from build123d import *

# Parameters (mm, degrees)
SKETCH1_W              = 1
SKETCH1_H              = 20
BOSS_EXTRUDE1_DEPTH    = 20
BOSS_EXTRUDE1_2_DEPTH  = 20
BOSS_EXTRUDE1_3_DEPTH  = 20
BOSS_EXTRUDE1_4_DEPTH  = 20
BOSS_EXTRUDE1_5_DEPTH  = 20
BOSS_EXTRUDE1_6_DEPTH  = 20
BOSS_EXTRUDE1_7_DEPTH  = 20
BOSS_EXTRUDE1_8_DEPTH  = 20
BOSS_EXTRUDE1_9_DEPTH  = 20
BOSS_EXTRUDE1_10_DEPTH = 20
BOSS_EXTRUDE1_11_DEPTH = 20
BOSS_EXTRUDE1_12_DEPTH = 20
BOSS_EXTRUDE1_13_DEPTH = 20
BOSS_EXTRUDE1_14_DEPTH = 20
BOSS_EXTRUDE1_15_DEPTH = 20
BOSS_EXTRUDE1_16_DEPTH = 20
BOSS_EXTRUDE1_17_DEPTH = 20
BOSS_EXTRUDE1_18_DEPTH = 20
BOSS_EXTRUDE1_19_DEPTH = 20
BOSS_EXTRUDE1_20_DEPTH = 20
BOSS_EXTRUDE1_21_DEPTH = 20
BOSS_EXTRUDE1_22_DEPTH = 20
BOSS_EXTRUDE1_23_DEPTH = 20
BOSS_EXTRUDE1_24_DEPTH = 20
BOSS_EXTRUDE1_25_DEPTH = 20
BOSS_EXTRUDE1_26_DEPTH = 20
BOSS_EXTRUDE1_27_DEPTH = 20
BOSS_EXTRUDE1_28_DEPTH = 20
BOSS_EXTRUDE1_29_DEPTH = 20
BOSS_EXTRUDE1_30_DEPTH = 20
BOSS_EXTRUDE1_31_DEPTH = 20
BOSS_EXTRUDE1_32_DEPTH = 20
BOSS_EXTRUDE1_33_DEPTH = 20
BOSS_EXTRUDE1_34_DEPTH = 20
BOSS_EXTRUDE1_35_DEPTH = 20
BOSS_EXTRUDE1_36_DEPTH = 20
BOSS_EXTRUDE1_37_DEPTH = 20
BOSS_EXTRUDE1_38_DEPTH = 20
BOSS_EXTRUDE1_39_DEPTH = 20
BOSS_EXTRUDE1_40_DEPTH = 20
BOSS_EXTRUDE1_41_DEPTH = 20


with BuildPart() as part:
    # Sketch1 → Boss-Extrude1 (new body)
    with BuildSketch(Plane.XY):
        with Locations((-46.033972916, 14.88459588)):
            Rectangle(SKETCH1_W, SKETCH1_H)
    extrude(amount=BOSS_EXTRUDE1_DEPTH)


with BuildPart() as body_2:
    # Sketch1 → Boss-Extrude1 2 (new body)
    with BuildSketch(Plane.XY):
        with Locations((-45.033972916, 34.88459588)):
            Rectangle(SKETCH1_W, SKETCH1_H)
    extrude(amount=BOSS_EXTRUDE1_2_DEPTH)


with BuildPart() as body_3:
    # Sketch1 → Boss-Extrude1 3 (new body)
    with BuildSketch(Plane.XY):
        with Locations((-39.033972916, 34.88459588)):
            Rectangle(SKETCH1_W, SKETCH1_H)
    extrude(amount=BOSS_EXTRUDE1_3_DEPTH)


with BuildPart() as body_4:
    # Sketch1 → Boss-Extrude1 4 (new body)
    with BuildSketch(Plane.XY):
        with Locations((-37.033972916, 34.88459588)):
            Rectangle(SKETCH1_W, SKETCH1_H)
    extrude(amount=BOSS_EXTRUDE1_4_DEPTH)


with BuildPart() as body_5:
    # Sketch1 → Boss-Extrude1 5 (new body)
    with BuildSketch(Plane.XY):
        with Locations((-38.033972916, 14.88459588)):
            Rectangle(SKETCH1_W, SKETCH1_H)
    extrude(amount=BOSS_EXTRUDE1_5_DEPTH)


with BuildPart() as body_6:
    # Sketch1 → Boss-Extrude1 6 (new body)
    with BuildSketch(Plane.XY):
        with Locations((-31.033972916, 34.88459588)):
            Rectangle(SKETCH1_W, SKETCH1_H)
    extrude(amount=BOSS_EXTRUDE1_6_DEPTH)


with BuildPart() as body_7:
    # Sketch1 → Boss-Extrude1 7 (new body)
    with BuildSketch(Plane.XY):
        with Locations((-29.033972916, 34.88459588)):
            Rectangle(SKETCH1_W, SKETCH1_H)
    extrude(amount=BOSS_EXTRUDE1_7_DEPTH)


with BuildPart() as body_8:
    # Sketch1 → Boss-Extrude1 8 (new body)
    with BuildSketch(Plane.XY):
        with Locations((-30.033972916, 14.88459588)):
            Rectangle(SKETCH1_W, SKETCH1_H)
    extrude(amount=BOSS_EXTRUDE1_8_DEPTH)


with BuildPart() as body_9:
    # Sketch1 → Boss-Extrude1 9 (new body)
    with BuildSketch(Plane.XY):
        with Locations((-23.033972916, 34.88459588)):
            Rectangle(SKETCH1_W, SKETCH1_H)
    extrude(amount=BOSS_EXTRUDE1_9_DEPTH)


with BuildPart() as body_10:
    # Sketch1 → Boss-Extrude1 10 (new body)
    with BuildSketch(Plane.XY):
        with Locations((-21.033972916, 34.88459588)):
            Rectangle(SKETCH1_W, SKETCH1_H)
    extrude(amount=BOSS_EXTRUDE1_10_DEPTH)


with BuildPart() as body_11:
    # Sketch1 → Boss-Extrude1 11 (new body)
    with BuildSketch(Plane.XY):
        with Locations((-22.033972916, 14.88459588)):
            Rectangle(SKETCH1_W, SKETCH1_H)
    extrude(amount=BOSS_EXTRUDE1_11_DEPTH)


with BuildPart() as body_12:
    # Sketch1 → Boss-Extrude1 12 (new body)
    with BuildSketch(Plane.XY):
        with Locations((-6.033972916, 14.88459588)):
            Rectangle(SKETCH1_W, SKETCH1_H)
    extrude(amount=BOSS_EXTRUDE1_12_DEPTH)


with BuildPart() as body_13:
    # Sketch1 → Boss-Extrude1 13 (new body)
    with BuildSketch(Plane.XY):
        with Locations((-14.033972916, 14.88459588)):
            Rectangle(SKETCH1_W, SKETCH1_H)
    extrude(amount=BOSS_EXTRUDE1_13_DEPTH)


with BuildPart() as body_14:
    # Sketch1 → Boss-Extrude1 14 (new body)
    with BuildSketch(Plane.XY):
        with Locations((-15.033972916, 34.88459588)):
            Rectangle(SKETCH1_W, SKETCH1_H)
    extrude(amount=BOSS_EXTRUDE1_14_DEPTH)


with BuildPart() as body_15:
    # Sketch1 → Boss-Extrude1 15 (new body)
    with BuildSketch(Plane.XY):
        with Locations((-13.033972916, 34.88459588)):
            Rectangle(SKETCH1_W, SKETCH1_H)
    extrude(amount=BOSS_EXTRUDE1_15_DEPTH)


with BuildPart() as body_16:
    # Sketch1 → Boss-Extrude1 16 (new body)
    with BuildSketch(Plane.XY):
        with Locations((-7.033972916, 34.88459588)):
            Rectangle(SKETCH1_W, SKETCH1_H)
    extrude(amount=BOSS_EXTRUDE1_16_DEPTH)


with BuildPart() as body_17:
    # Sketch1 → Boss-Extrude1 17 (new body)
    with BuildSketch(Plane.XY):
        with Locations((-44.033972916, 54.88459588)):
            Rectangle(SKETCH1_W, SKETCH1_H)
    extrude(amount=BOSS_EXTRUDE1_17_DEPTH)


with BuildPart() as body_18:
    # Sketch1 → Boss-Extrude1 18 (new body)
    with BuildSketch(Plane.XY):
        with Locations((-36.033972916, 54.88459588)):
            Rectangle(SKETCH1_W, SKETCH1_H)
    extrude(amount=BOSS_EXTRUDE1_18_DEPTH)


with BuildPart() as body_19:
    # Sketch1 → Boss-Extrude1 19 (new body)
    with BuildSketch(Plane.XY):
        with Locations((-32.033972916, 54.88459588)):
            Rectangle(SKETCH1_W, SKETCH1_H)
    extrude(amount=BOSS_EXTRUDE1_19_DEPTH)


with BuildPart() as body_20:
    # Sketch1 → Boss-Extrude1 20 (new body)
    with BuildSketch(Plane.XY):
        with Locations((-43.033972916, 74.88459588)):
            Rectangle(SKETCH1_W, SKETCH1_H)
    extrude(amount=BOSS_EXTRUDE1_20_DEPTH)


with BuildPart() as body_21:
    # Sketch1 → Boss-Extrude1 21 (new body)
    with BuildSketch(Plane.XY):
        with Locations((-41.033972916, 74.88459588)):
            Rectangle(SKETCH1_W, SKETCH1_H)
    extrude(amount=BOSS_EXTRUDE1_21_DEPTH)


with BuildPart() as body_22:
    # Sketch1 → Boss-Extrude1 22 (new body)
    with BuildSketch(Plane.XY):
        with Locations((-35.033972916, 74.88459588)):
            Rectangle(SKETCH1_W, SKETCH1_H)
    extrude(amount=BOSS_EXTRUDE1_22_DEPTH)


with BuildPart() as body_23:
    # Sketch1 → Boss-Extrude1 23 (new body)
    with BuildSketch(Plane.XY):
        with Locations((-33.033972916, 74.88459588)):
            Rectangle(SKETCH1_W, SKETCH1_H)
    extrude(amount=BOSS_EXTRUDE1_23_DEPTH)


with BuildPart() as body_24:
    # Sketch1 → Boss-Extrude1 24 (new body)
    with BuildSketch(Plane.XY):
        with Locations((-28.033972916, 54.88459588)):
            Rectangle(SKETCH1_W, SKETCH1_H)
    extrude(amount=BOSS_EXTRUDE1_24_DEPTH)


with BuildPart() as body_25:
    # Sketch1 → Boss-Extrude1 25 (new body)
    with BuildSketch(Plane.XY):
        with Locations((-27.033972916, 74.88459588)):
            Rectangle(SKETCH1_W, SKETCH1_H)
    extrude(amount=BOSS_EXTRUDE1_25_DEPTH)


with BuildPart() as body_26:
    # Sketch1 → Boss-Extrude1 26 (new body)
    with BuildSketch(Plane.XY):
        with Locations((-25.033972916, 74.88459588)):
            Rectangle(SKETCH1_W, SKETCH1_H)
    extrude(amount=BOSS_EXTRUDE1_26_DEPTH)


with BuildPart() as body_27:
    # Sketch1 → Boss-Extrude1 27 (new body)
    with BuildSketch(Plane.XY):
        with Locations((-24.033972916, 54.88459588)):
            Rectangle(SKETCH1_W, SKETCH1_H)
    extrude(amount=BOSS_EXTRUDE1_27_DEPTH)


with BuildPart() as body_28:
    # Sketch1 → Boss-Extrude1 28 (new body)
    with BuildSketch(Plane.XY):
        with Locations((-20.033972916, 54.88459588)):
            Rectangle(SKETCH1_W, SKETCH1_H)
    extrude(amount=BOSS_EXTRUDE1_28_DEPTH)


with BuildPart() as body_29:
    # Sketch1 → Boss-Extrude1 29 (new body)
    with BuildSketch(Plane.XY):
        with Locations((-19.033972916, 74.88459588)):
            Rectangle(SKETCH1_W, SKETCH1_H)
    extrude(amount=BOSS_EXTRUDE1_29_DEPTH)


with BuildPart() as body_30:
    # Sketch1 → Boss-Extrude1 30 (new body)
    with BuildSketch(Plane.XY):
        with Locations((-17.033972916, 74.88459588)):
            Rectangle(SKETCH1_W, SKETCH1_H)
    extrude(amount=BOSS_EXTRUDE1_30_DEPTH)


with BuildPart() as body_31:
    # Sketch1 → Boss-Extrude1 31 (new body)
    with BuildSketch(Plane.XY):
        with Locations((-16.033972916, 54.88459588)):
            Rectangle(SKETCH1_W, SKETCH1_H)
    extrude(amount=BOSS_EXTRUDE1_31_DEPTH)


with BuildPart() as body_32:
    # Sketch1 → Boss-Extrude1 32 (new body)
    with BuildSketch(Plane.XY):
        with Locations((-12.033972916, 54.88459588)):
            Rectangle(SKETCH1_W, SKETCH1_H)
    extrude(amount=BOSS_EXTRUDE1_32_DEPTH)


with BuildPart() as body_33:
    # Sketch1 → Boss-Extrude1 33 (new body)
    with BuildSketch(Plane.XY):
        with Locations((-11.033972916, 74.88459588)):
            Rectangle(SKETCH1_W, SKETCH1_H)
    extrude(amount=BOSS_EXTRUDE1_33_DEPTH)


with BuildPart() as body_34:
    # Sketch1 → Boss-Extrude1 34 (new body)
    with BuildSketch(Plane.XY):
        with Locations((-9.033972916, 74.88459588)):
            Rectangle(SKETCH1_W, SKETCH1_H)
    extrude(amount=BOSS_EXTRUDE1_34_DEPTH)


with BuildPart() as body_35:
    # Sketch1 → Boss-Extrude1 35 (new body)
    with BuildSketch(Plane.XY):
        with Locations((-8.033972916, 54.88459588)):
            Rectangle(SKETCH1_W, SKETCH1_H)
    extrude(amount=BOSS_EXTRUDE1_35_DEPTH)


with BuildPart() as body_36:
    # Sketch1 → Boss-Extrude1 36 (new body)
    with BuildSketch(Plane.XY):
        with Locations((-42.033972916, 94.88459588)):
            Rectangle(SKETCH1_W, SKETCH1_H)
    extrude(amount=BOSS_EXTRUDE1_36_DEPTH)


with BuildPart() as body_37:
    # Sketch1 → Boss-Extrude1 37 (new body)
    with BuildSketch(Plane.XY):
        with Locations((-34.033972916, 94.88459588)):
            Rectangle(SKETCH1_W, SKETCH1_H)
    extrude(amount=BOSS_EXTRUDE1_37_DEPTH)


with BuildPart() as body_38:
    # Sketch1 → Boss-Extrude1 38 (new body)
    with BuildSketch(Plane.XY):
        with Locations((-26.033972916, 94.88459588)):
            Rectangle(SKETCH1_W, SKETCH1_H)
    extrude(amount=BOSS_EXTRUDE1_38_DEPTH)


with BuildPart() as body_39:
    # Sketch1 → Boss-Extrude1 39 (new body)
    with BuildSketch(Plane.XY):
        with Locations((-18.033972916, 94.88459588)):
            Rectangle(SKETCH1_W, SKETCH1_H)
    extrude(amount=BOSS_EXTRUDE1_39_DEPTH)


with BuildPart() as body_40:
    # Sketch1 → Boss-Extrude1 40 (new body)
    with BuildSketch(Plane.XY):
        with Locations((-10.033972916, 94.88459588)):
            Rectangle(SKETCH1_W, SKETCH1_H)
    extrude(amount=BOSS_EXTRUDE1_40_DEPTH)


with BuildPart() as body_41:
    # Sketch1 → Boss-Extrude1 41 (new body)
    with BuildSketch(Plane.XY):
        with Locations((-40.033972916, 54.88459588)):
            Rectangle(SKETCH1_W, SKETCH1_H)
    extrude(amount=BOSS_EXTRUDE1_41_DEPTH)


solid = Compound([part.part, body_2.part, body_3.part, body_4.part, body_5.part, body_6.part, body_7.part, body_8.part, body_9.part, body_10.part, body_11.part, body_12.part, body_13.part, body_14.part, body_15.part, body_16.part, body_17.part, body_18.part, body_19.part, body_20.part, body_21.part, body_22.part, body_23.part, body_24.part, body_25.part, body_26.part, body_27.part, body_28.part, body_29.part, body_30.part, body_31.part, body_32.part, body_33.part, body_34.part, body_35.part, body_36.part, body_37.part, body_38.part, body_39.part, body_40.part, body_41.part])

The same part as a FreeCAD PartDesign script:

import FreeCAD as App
import Part
import Sketcher
Q = App.Units.Quantity


def add_polygon(sketch, points):
    """Adds a closed chain of lines whose ends are joined by coincident constraints."""
    first, n = sketch.GeometryCount, len(points)
    for a, b in zip(points, points[1:] + points[:1]):
        sketch.addGeometry(Part.LineSegment(App.Vector(*a, 0), App.Vector(*b, 0)), False)
    for i in range(n):
        sketch.addConstraint(Sketcher.Constraint("Coincident", first + i, 2, first + (i + 1) % n, 1))

doc = App.newDocument("Part")
body = doc.addObject("PartDesign::Body", "Body")

# Sketch on XY plane
sketch1 = doc.addObject("Sketcher::SketchObject", "Sketch")
body.addObject(sketch1)
sketch1.AttachmentSupport = (doc.XY_Plane, [""])
sketch1.MapMode = "FlatFace"
add_polygon(sketch1, [(-46.5, 24.9), (-46.5, 4.9), (-45.5, 4.9), (-45.5, 24.9)])  # lines 0-3
sketch1.addConstraint([
    Sketcher.Constraint("Vertical", 0),
    Sketcher.Constraint("Horizontal", 1),
    Sketcher.Constraint("Vertical", 2),
    Sketcher.Constraint("Horizontal", 3),
    Sketcher.Constraint("DistanceX", 1, 1, 1, 2, Q("1 mm")),
    Sketcher.Constraint("DistanceY", 0, 2, 0, 1, Q("20 mm")),
    Sketcher.Constraint("DistanceX", 0, 2, -1, 1, Q("46.533973 mm")),
    Sketcher.Constraint("DistanceY", -1, 1, 0, 2, Q("4.884596 mm")),
])
pad1 = doc.addObject("PartDesign::Pad", "Pad")
body.addObject(pad1)
pad1.Profile = sketch1
pad1.Length = 20
body2 = doc.addObject("PartDesign::Body", "Body001")

# Sketch on XY plane
sketch2 = doc.addObject("Sketcher::SketchObject", "Sketch001")
body2.addObject(sketch2)
sketch2.AttachmentSupport = (doc.getObject("XY_Plane001"), [""])
sketch2.MapMode = "FlatFace"
add_polygon(sketch2, [(-45.5, 44.9), (-45.5, 24.9), (-44.5, 24.9), (-44.5, 44.9)])  # lines 0-3
sketch2.addConstraint([
    Sketcher.Constraint("Vertical", 0),
    Sketcher.Constraint("Horizontal", 1),
    Sketcher.Constraint("Vertical", 2),
    Sketcher.Constraint("Horizontal", 3),
    Sketcher.Constraint("DistanceX", 1, 1, 1, 2, Q("1 mm")),
    Sketcher.Constraint("DistanceY", 0, 2, 0, 1, Q("20 mm")),
    Sketcher.Constraint("DistanceX", 0, 2, -1, 1, Q("45.533973 mm")),
    Sketcher.Constraint("DistanceY", -1, 1, 0, 2, Q("24.884596 mm")),
])
pad2 = doc.addObject("PartDesign::Pad", "Pad001")
body2.addObject(pad2)
pad2.Profile = sketch2
pad2.Length = 20
body3 = doc.addObject("PartDesign::Body", "Body002")

# Sketch on XY plane
sketch3 = doc.addObject("Sketcher::SketchObject", "Sketch002")
body3.addObject(sketch3)
sketch3.AttachmentSupport = (doc.getObject("XY_Plane002"), [""])
sketch3.MapMode = "FlatFace"
add_polygon(sketch3, [(-39.5, 44.9), (-39.5, 24.9), (-38.5, 24.9), (-38.5, 44.9)])  # lines 0-3
sketch3.addConstraint([
    Sketcher.Constraint("Vertical", 0),
    Sketcher.Constraint("Horizontal", 1),
    Sketcher.Constraint("Vertical", 2),
    Sketcher.Constraint("Horizontal", 3),
    Sketcher.Constraint("DistanceX", 1, 1, 1, 2, Q("1 mm")),
    Sketcher.Constraint("DistanceY", 0, 2, 0, 1, Q("20 mm")),
    Sketcher.Constraint("DistanceX", 0, 2, -1, 1, Q("39.533973 mm")),
    Sketcher.Constraint("DistanceY", -1, 1, 0, 2, Q("24.884596 mm")),
])
pad3 = doc.addObject("PartDesign::Pad", "Pad002")
body3.addObject(pad3)
pad3.Profile = sketch3
pad3.Length = 20
body4 = doc.addObject("PartDesign::Body", "Body003")

# Sketch on XY plane
sketch4 = doc.addObject("Sketcher::SketchObject", "Sketch003")
body4.addObject(sketch4)
sketch4.AttachmentSupport = (doc.getObject("XY_Plane003"), [""])
sketch4.MapMode = "FlatFace"
add_polygon(sketch4, [(-37.5, 44.9), (-37.5, 24.9), (-36.5, 24.9), (-36.5, 44.9)])  # lines 0-3
sketch4.addConstraint([
    Sketcher.Constraint("Vertical", 0),
    Sketcher.Constraint("Horizontal", 1),
    Sketcher.Constraint("Vertical", 2),
    Sketcher.Constraint("Horizontal", 3),
    Sketcher.Constraint("DistanceX", 1, 1, 1, 2, Q("1 mm")),
    Sketcher.Constraint("DistanceY", 0, 2, 0, 1, Q("20 mm")),
    Sketcher.Constraint("DistanceX", 0, 2, -1, 1, Q("37.533973 mm")),
    Sketcher.Constraint("DistanceY", -1, 1, 0, 2, Q("24.884596 mm")),
])
pad4 = doc.addObject("PartDesign::Pad", "Pad003")
body4.addObject(pad4)
pad4.Profile = sketch4
pad4.Length = 20
body5 = doc.addObject("PartDesign::Body", "Body004")

# Sketch on XY plane
sketch5 = doc.addObject("Sketcher::SketchObject", "Sketch004")
body5.addObject(sketch5)
sketch5.AttachmentSupport = (doc.getObject("XY_Plane004"), [""])
sketch5.MapMode = "FlatFace"
add_polygon(sketch5, [(-38.5, 24.9), (-38.5, 4.9), (-37.5, 4.9), (-37.5, 24.9)])  # lines 0-3
sketch5.addConstraint([
    Sketcher.Constraint("Vertical", 0),
    Sketcher.Constraint("Horizontal", 1),
    Sketcher.Constraint("Vertical", 2),
    Sketcher.Constraint("Horizontal", 3),
    Sketcher.Constraint("DistanceX", 1, 1, 1, 2, Q("1 mm")),
    Sketcher.Constraint("DistanceY", 0, 2, 0, 1, Q("20 mm")),
    Sketcher.Constraint("DistanceX", 0, 2, -1, 1, Q("38.533973 mm")),
    Sketcher.Constraint("DistanceY", -1, 1, 0, 2, Q("4.884596 mm")),
])
pad5 = doc.addObject("PartDesign::Pad", "Pad004")
body5.addObject(pad5)
pad5.Profile = sketch5
pad5.Length = 20
body6 = doc.addObject("PartDesign::Body", "Body005")

# Sketch on XY plane
sketch6 = doc.addObject("Sketcher::SketchObject", "Sketch005")
body6.addObject(sketch6)
sketch6.AttachmentSupport = (doc.getObject("XY_Plane005"), [""])
sketch6.MapMode = "FlatFace"
add_polygon(sketch6, [(-31.5, 44.9), (-31.5, 24.9), (-30.5, 24.9), (-30.5, 44.9)])  # lines 0-3
sketch6.addConstraint([
    Sketcher.Constraint("Vertical", 0),
    Sketcher.Constraint("Horizontal", 1),
    Sketcher.Constraint("Vertical", 2),
    Sketcher.Constraint("Horizontal", 3),
    Sketcher.Constraint("DistanceX", 1, 1, 1, 2, Q("1 mm")),
    Sketcher.Constraint("DistanceY", 0, 2, 0, 1, Q("20 mm")),
    Sketcher.Constraint("DistanceX", 0, 2, -1, 1, Q("31.533973 mm")),
    Sketcher.Constraint("DistanceY", -1, 1, 0, 2, Q("24.884596 mm")),
])
pad6 = doc.addObject("PartDesign::Pad", "Pad005")
body6.addObject(pad6)
pad6.Profile = sketch6
pad6.Length = 20
body7 = doc.addObject("PartDesign::Body", "Body006")

# Sketch on XY plane
sketch7 = doc.addObject("Sketcher::SketchObject", "Sketch006")
body7.addObject(sketch7)
sketch7.AttachmentSupport = (doc.getObject("XY_Plane006"), [""])
sketch7.MapMode = "FlatFace"
add_polygon(sketch7, [(-29.5, 44.9), (-29.5, 24.9), (-28.5, 24.9), (-28.5, 44.9)])  # lines 0-3
sketch7.addConstraint([
    Sketcher.Constraint("Vertical", 0),
    Sketcher.Constraint("Horizontal", 1),
    Sketcher.Constraint("Vertical", 2),
    Sketcher.Constraint("Horizontal", 3),
    Sketcher.Constraint("DistanceX", 1, 1, 1, 2, Q("1 mm")),
    Sketcher.Constraint("DistanceY", 0, 2, 0, 1, Q("20 mm")),
    Sketcher.Constraint("DistanceX", 0, 2, -1, 1, Q("29.533973 mm")),
    Sketcher.Constraint("DistanceY", -1, 1, 0, 2, Q("24.884596 mm")),
])
pad7 = doc.addObject("PartDesign::Pad", "Pad006")
body7.addObject(pad7)
pad7.Profile = sketch7
pad7.Length = 20
body8 = doc.addObject("PartDesign::Body", "Body007")

# Sketch on XY plane
sketch8 = doc.addObject("Sketcher::SketchObject", "Sketch007")
body8.addObject(sketch8)
sketch8.AttachmentSupport = (doc.getObject("XY_Plane007"), [""])
sketch8.MapMode = "FlatFace"
add_polygon(sketch8, [(-30.5, 24.9), (-30.5, 4.9), (-29.5, 4.9), (-29.5, 24.9)])  # lines 0-3
sketch8.addConstraint([
    Sketcher.Constraint("Vertical", 0),
    Sketcher.Constraint("Horizontal", 1),
    Sketcher.Constraint("Vertical", 2),
    Sketcher.Constraint("Horizontal", 3),
    Sketcher.Constraint("DistanceX", 1, 1, 1, 2, Q("1 mm")),
    Sketcher.Constraint("DistanceY", 0, 2, 0, 1, Q("20 mm")),
    Sketcher.Constraint("DistanceX", 0, 2, -1, 1, Q("30.533973 mm")),
    Sketcher.Constraint("DistanceY", -1, 1, 0, 2, Q("4.884596 mm")),
])
pad8 = doc.addObject("PartDesign::Pad", "Pad007")
body8.addObject(pad8)
pad8.Profile = sketch8
pad8.Length = 20
body9 = doc.addObject("PartDesign::Body", "Body008")

# Sketch on XY plane
sketch9 = doc.addObject("Sketcher::SketchObject", "Sketch008")
body9.addObject(sketch9)
sketch9.AttachmentSupport = (doc.getObject("XY_Plane008"), [""])
sketch9.MapMode = "FlatFace"
add_polygon(sketch9, [(-23.5, 44.9), (-23.5, 24.9), (-22.5, 24.9), (-22.5, 44.9)])  # lines 0-3
sketch9.addConstraint([
    Sketcher.Constraint("Vertical", 0),
    Sketcher.Constraint("Horizontal", 1),
    Sketcher.Constraint("Vertical", 2),
    Sketcher.Constraint("Horizontal", 3),
    Sketcher.Constraint("DistanceX", 1, 1, 1, 2, Q("1 mm")),
    Sketcher.Constraint("DistanceY", 0, 2, 0, 1, Q("20 mm")),
    Sketcher.Constraint("DistanceX", 0, 2, -1, 1, Q("23.533973 mm")),
    Sketcher.Constraint("DistanceY", -1, 1, 0, 2, Q("24.884596 mm")),
])
pad9 = doc.addObject("PartDesign::Pad", "Pad008")
body9.addObject(pad9)
pad9.Profile = sketch9
pad9.Length = 20
body10 = doc.addObject("PartDesign::Body", "Body009")

# Sketch on XY plane
sketch10 = doc.addObject("Sketcher::SketchObject", "Sketch009")
body10.addObject(sketch10)
sketch10.AttachmentSupport = (doc.getObject("XY_Plane009"), [""])
sketch10.MapMode = "FlatFace"
add_polygon(sketch10, [(-21.5, 44.9), (-21.5, 24.9), (-20.5, 24.9), (-20.5, 44.9)])  # lines 0-3
sketch10.addConstraint([
    Sketcher.Constraint("Vertical", 0),
    Sketcher.Constraint("Horizontal", 1),
    Sketcher.Constraint("Vertical", 2),
    Sketcher.Constraint("Horizontal", 3),
    Sketcher.Constraint("DistanceX", 1, 1, 1, 2, Q("1 mm")),
    Sketcher.Constraint("DistanceY", 0, 2, 0, 1, Q("20 mm")),
    Sketcher.Constraint("DistanceX", 0, 2, -1, 1, Q("21.533973 mm")),
    Sketcher.Constraint("DistanceY", -1, 1, 0, 2, Q("24.884596 mm")),
])
pad10 = doc.addObject("PartDesign::Pad", "Pad009")
body10.addObject(pad10)
pad10.Profile = sketch10
pad10.Length = 20
body11 = doc.addObject("PartDesign::Body", "Body010")

# Sketch on XY plane
sketch11 = doc.addObject("Sketcher::SketchObject", "Sketch010")
body11.addObject(sketch11)
sketch11.AttachmentSupport = (doc.getObject("XY_Plane010"), [""])
sketch11.MapMode = "FlatFace"
add_polygon(sketch11, [(-22.5, 24.9), (-22.5, 4.9), (-21.5, 4.9), (-21.5, 24.9)])  # lines 0-3
sketch11.addConstraint([
    Sketcher.Constraint("Vertical", 0),
    Sketcher.Constraint("Horizontal", 1),
    Sketcher.Constraint("Vertical", 2),
    Sketcher.Constraint("Horizontal", 3),
    Sketcher.Constraint("DistanceX", 1, 1, 1, 2, Q("1 mm")),
    Sketcher.Constraint("DistanceY", 0, 2, 0, 1, Q("20 mm")),
    Sketcher.Constraint("DistanceX", 0, 2, -1, 1, Q("22.533973 mm")),
    Sketcher.Constraint("DistanceY", -1, 1, 0, 2, Q("4.884596 mm")),
])
pad11 = doc.addObject("PartDesign::Pad", "Pad010")
body11.addObject(pad11)
pad11.Profile = sketch11
pad11.Length = 20
body12 = doc.addObject("PartDesign::Body", "Body011")

# Sketch on XY plane
sketch12 = doc.addObject("Sketcher::SketchObject", "Sketch011")
body12.addObject(sketch12)
sketch12.AttachmentSupport = (doc.getObject("XY_Plane011"), [""])
sketch12.MapMode = "FlatFace"
add_polygon(sketch12, [(-6.5, 24.9), (-6.5, 4.9), (-5.5, 4.9), (-5.5, 24.9)])  # lines 0-3
sketch12.addConstraint([
    Sketcher.Constraint("Vertical", 0),
    Sketcher.Constraint("Horizontal", 1),
    Sketcher.Constraint("Vertical", 2),
    Sketcher.Constraint("Horizontal", 3),
    Sketcher.Constraint("DistanceX", 1, 1, 1, 2, Q("1 mm")),
    Sketcher.Constraint("DistanceY", 0, 2, 0, 1, Q("20 mm")),
    Sketcher.Constraint("DistanceX", 0, 2, -1, 1, Q("6.533973 mm")),
    Sketcher.Constraint("DistanceY", -1, 1, 0, 2, Q("4.884596 mm")),
])
pad12 = doc.addObject("PartDesign::Pad", "Pad011")
body12.addObject(pad12)
pad12.Profile = sketch12
pad12.Length = 20
body13 = doc.addObject("PartDesign::Body", "Body012")

# Sketch on XY plane
sketch13 = doc.addObject("Sketcher::SketchObject", "Sketch012")
body13.addObject(sketch13)
sketch13.AttachmentSupport = (doc.getObject("XY_Plane012"), [""])
sketch13.MapMode = "FlatFace"
add_polygon(sketch13, [(-14.5, 24.9), (-14.5, 4.9), (-13.5, 4.9), (-13.5, 24.9)])  # lines 0-3
sketch13.addConstraint([
    Sketcher.Constraint("Vertical", 0),
    Sketcher.Constraint("Horizontal", 1),
    Sketcher.Constraint("Vertical", 2),
    Sketcher.Constraint("Horizontal", 3),
    Sketcher.Constraint("DistanceX", 1, 1, 1, 2, Q("1 mm")),
    Sketcher.Constraint("DistanceY", 0, 2, 0, 1, Q("20 mm")),
    Sketcher.Constraint("DistanceX", 0, 2, -1, 1, Q("14.533973 mm")),
    Sketcher.Constraint("DistanceY", -1, 1, 0, 2, Q("4.884596 mm")),
])
pad13 = doc.addObject("PartDesign::Pad", "Pad012")
body13.addObject(pad13)
pad13.Profile = sketch13
pad13.Length = 20
body14 = doc.addObject("PartDesign::Body", "Body013")

# Sketch on XY plane
sketch14 = doc.addObject("Sketcher::SketchObject", "Sketch013")
body14.addObject(sketch14)
sketch14.AttachmentSupport = (doc.getObject("XY_Plane013"), [""])
sketch14.MapMode = "FlatFace"
add_polygon(sketch14, [(-15.5, 44.9), (-15.5, 24.9), (-14.5, 24.9), (-14.5, 44.9)])  # lines 0-3
sketch14.addConstraint([
    Sketcher.Constraint("Vertical", 0),
    Sketcher.Constraint("Horizontal", 1),
    Sketcher.Constraint("Vertical", 2),
    Sketcher.Constraint("Horizontal", 3),
    Sketcher.Constraint("DistanceX", 1, 1, 1, 2, Q("1 mm")),
    Sketcher.Constraint("DistanceY", 0, 2, 0, 1, Q("20 mm")),
    Sketcher.Constraint("DistanceX", 0, 2, -1, 1, Q("15.533973 mm")),
    Sketcher.Constraint("DistanceY", -1, 1, 0, 2, Q("24.884596 mm")),
])
pad14 = doc.addObject("PartDesign::Pad", "Pad013")
body14.addObject(pad14)
pad14.Profile = sketch14
pad14.Length = 20
body15 = doc.addObject("PartDesign::Body", "Body014")

# Sketch on XY plane
sketch15 = doc.addObject("Sketcher::SketchObject", "Sketch014")
body15.addObject(sketch15)
sketch15.AttachmentSupport = (doc.getObject("XY_Plane014"), [""])
sketch15.MapMode = "FlatFace"
add_polygon(sketch15, [(-13.5, 44.9), (-13.5, 24.9), (-12.5, 24.9), (-12.5, 44.9)])  # lines 0-3
sketch15.addConstraint([
    Sketcher.Constraint("Vertical", 0),
    Sketcher.Constraint("Horizontal", 1),
    Sketcher.Constraint("Vertical", 2),
    Sketcher.Constraint("Horizontal", 3),
    Sketcher.Constraint("DistanceX", 1, 1, 1, 2, Q("1 mm")),
    Sketcher.Constraint("DistanceY", 0, 2, 0, 1, Q("20 mm")),
    Sketcher.Constraint("DistanceX", 0, 2, -1, 1, Q("13.533973 mm")),
    Sketcher.Constraint("DistanceY", -1, 1, 0, 2, Q("24.884596 mm")),
])
pad15 = doc.addObject("PartDesign::Pad", "Pad014")
body15.addObject(pad15)
pad15.Profile = sketch15
pad15.Length = 20
body16 = doc.addObject("PartDesign::Body", "Body015")

# Sketch on XY plane
sketch16 = doc.addObject("Sketcher::SketchObject", "Sketch015")
body16.addObject(sketch16)
sketch16.AttachmentSupport = (doc.getObject("XY_Plane015"), [""])
sketch16.MapMode = "FlatFace"
add_polygon(sketch16, [(-7.5, 44.9), (-7.5, 24.9), (-6.5, 24.9), (-6.5, 44.9)])  # lines 0-3
sketch16.addConstraint([
    Sketcher.Constraint("Vertical", 0),
    Sketcher.Constraint("Horizontal", 1),
    Sketcher.Constraint("Vertical", 2),
    Sketcher.Constraint("Horizontal", 3),
    Sketcher.Constraint("DistanceX", 1, 1, 1, 2, Q("1 mm")),
    Sketcher.Constraint("DistanceY", 0, 2, 0, 1, Q("20 mm")),
    Sketcher.Constraint("DistanceX", 0, 2, -1, 1, Q("7.533973 mm")),
    Sketcher.Constraint("DistanceY", -1, 1, 0, 2, Q("24.884596 mm")),
])
pad16 = doc.addObject("PartDesign::Pad", "Pad015")
body16.addObject(pad16)
pad16.Profile = sketch16
pad16.Length = 20
body17 = doc.addObject("PartDesign::Body", "Body016")

# Sketch on XY plane
sketch17 = doc.addObject("Sketcher::SketchObject", "Sketch016")
body17.addObject(sketch17)
sketch17.AttachmentSupport = (doc.getObject("XY_Plane016"), [""])
sketch17.MapMode = "FlatFace"
add_polygon(sketch17, [(-44.5, 64.9), (-44.5, 44.9), (-43.5, 44.9), (-43.5, 64.9)])  # lines 0-3
sketch17.addConstraint([
    Sketcher.Constraint("Vertical", 0),
    Sketcher.Constraint("Horizontal", 1),
    Sketcher.Constraint("Vertical", 2),
    Sketcher.Constraint("Horizontal", 3),
    Sketcher.Constraint("DistanceX", 1, 1, 1, 2, Q("1 mm")),
    Sketcher.Constraint("DistanceY", 0, 2, 0, 1, Q("20 mm")),
    Sketcher.Constraint("DistanceX", 0, 2, -1, 1, Q("44.533973 mm")),
    Sketcher.Constraint("DistanceY", -1, 1, 0, 2, Q("44.884596 mm")),
])
pad17 = doc.addObject("PartDesign::Pad", "Pad016")
body17.addObject(pad17)
pad17.Profile = sketch17
pad17.Length = 20
body18 = doc.addObject("PartDesign::Body", "Body017")

# Sketch on XY plane
sketch18 = doc.addObject("Sketcher::SketchObject", "Sketch017")
body18.addObject(sketch18)
sketch18.AttachmentSupport = (doc.getObject("XY_Plane017"), [""])
sketch18.MapMode = "FlatFace"
add_polygon(sketch18, [(-36.5, 64.9), (-36.5, 44.9), (-35.5, 44.9), (-35.5, 64.9)])  # lines 0-3
sketch18.addConstraint([
    Sketcher.Constraint("Vertical", 0),
    Sketcher.Constraint("Horizontal", 1),
    Sketcher.Constraint("Vertical", 2),
    Sketcher.Constraint("Horizontal", 3),
    Sketcher.Constraint("DistanceX", 1, 1, 1, 2, Q("1 mm")),
    Sketcher.Constraint("DistanceY", 0, 2, 0, 1, Q("20 mm")),
    Sketcher.Constraint("DistanceX", 0, 2, -1, 1, Q("36.533973 mm")),
    Sketcher.Constraint("DistanceY", -1, 1, 0, 2, Q("44.884596 mm")),
])
pad18 = doc.addObject("PartDesign::Pad", "Pad017")
body18.addObject(pad18)
pad18.Profile = sketch18
pad18.Length = 20
body19 = doc.addObject("PartDesign::Body", "Body018")

# Sketch on XY plane
sketch19 = doc.addObject("Sketcher::SketchObject", "Sketch018")
body19.addObject(sketch19)
sketch19.AttachmentSupport = (doc.getObject("XY_Plane018"), [""])
sketch19.MapMode = "FlatFace"
add_polygon(sketch19, [(-32.5, 64.9), (-32.5, 44.9), (-31.5, 44.9), (-31.5, 64.9)])  # lines 0-3
sketch19.addConstraint([
    Sketcher.Constraint("Vertical", 0),
    Sketcher.Constraint("Horizontal", 1),
    Sketcher.Constraint("Vertical", 2),
    Sketcher.Constraint("Horizontal", 3),
    Sketcher.Constraint("DistanceX", 1, 1, 1, 2, Q("1 mm")),
    Sketcher.Constraint("DistanceY", 0, 2, 0, 1, Q("20 mm")),
    Sketcher.Constraint("DistanceX", 0, 2, -1, 1, Q("32.533973 mm")),
    Sketcher.Constraint("DistanceY", -1, 1, 0, 2, Q("44.884596 mm")),
])
pad19 = doc.addObject("PartDesign::Pad", "Pad018")
body19.addObject(pad19)
pad19.Profile = sketch19
pad19.Length = 20
body20 = doc.addObject("PartDesign::Body", "Body019")

# Sketch on XY plane
sketch20 = doc.addObject("Sketcher::SketchObject", "Sketch019")
body20.addObject(sketch20)
sketch20.AttachmentSupport = (doc.getObject("XY_Plane019"), [""])
sketch20.MapMode = "FlatFace"
add_polygon(sketch20, [(-43.5, 84.9), (-43.5, 64.9), (-42.5, 64.9), (-42.5, 84.9)])  # lines 0-3
sketch20.addConstraint([
    Sketcher.Constraint("Vertical", 0),
    Sketcher.Constraint("Horizontal", 1),
    Sketcher.Constraint("Vertical", 2),
    Sketcher.Constraint("Horizontal", 3),
    Sketcher.Constraint("DistanceX", 1, 1, 1, 2, Q("1 mm")),
    Sketcher.Constraint("DistanceY", 0, 2, 0, 1, Q("20 mm")),
    Sketcher.Constraint("DistanceX", 0, 2, -1, 1, Q("43.533973 mm")),
    Sketcher.Constraint("DistanceY", -1, 1, 0, 2, Q("64.884596 mm")),
])
pad20 = doc.addObject("PartDesign::Pad", "Pad019")
body20.addObject(pad20)
pad20.Profile = sketch20
pad20.Length = 20
body21 = doc.addObject("PartDesign::Body", "Body020")

# Sketch on XY plane
sketch21 = doc.addObject("Sketcher::SketchObject", "Sketch020")
body21.addObject(sketch21)
sketch21.AttachmentSupport = (doc.getObject("XY_Plane020"), [""])
sketch21.MapMode = "FlatFace"
add_polygon(sketch21, [(-41.5, 84.9), (-41.5, 64.9), (-40.5, 64.9), (-40.5, 84.9)])  # lines 0-3
sketch21.addConstraint([
    Sketcher.Constraint("Vertical", 0),
    Sketcher.Constraint("Horizontal", 1),
    Sketcher.Constraint("Vertical", 2),
    Sketcher.Constraint("Horizontal", 3),
    Sketcher.Constraint("DistanceX", 1, 1, 1, 2, Q("1 mm")),
    Sketcher.Constraint("DistanceY", 0, 2, 0, 1, Q("20 mm")),
    Sketcher.Constraint("DistanceX", 0, 2, -1, 1, Q("41.533973 mm")),
    Sketcher.Constraint("DistanceY", -1, 1, 0, 2, Q("64.884596 mm")),
])
pad21 = doc.addObject("PartDesign::Pad", "Pad020")
body21.addObject(pad21)
pad21.Profile = sketch21
pad21.Length = 20
body22 = doc.addObject("PartDesign::Body", "Body021")

# Sketch on XY plane
sketch22 = doc.addObject("Sketcher::SketchObject", "Sketch021")
body22.addObject(sketch22)
sketch22.AttachmentSupport = (doc.getObject("XY_Plane021"), [""])
sketch22.MapMode = "FlatFace"
add_polygon(sketch22, [(-35.5, 84.9), (-35.5, 64.9), (-34.5, 64.9), (-34.5, 84.9)])  # lines 0-3
sketch22.addConstraint([
    Sketcher.Constraint("Vertical", 0),
    Sketcher.Constraint("Horizontal", 1),
    Sketcher.Constraint("Vertical", 2),
    Sketcher.Constraint("Horizontal", 3),
    Sketcher.Constraint("DistanceX", 1, 1, 1, 2, Q("1 mm")),
    Sketcher.Constraint("DistanceY", 0, 2, 0, 1, Q("20 mm")),
    Sketcher.Constraint("DistanceX", 0, 2, -1, 1, Q("35.533973 mm")),
    Sketcher.Constraint("DistanceY", -1, 1, 0, 2, Q("64.884596 mm")),
])
pad22 = doc.addObject("PartDesign::Pad", "Pad021")
body22.addObject(pad22)
pad22.Profile = sketch22
pad22.Length = 20
body23 = doc.addObject("PartDesign::Body", "Body022")

# Sketch on XY plane
sketch23 = doc.addObject("Sketcher::SketchObject", "Sketch022")
body23.addObject(sketch23)
sketch23.AttachmentSupport = (doc.getObject("XY_Plane022"), [""])
sketch23.MapMode = "FlatFace"
add_polygon(sketch23, [(-33.5, 84.9), (-33.5, 64.9), (-32.5, 64.9), (-32.5, 84.9)])  # lines 0-3
sketch23.addConstraint([
    Sketcher.Constraint("Vertical", 0),
    Sketcher.Constraint("Horizontal", 1),
    Sketcher.Constraint("Vertical", 2),
    Sketcher.Constraint("Horizontal", 3),
    Sketcher.Constraint("DistanceX", 1, 1, 1, 2, Q("1 mm")),
    Sketcher.Constraint("DistanceY", 0, 2, 0, 1, Q("20 mm")),
    Sketcher.Constraint("DistanceX", 0, 2, -1, 1, Q("33.533973 mm")),
    Sketcher.Constraint("DistanceY", -1, 1, 0, 2, Q("64.884596 mm")),
])
pad23 = doc.addObject("PartDesign::Pad", "Pad022")
body23.addObject(pad23)
pad23.Profile = sketch23
pad23.Length = 20
body24 = doc.addObject("PartDesign::Body", "Body023")

# Sketch on XY plane
sketch24 = doc.addObject("Sketcher::SketchObject", "Sketch023")
body24.addObject(sketch24)
sketch24.AttachmentSupport = (doc.getObject("XY_Plane023"), [""])
sketch24.MapMode = "FlatFace"
add_polygon(sketch24, [(-28.5, 64.9), (-28.5, 44.9), (-27.5, 44.9), (-27.5, 64.9)])  # lines 0-3
sketch24.addConstraint([
    Sketcher.Constraint("Vertical", 0),
    Sketcher.Constraint("Horizontal", 1),
    Sketcher.Constraint("Vertical", 2),
    Sketcher.Constraint("Horizontal", 3),
    Sketcher.Constraint("DistanceX", 1, 1, 1, 2, Q("1 mm")),
    Sketcher.Constraint("DistanceY", 0, 2, 0, 1, Q("20 mm")),
    Sketcher.Constraint("DistanceX", 0, 2, -1, 1, Q("28.533973 mm")),
    Sketcher.Constraint("DistanceY", -1, 1, 0, 2, Q("44.884596 mm")),
])
pad24 = doc.addObject("PartDesign::Pad", "Pad023")
body24.addObject(pad24)
pad24.Profile = sketch24
pad24.Length = 20
body25 = doc.addObject("PartDesign::Body", "Body024")

# Sketch on XY plane
sketch25 = doc.addObject("Sketcher::SketchObject", "Sketch024")
body25.addObject(sketch25)
sketch25.AttachmentSupport = (doc.getObject("XY_Plane024"), [""])
sketch25.MapMode = "FlatFace"
add_polygon(sketch25, [(-27.5, 84.9), (-27.5, 64.9), (-26.5, 64.9), (-26.5, 84.9)])  # lines 0-3
sketch25.addConstraint([
    Sketcher.Constraint("Vertical", 0),
    Sketcher.Constraint("Horizontal", 1),
    Sketcher.Constraint("Vertical", 2),
    Sketcher.Constraint("Horizontal", 3),
    Sketcher.Constraint("DistanceX", 1, 1, 1, 2, Q("1 mm")),
    Sketcher.Constraint("DistanceY", 0, 2, 0, 1, Q("20 mm")),
    Sketcher.Constraint("DistanceX", 0, 2, -1, 1, Q("27.533973 mm")),
    Sketcher.Constraint("DistanceY", -1, 1, 0, 2, Q("64.884596 mm")),
])
pad25 = doc.addObject("PartDesign::Pad", "Pad024")
body25.addObject(pad25)
pad25.Profile = sketch25
pad25.Length = 20
body26 = doc.addObject("PartDesign::Body", "Body025")

# Sketch on XY plane
sketch26 = doc.addObject("Sketcher::SketchObject", "Sketch025")
body26.addObject(sketch26)
sketch26.AttachmentSupport = (doc.getObject("XY_Plane025"), [""])
sketch26.MapMode = "FlatFace"
add_polygon(sketch26, [(-25.5, 84.9), (-25.5, 64.9), (-24.5, 64.9), (-24.5, 84.9)])  # lines 0-3
sketch26.addConstraint([
    Sketcher.Constraint("Vertical", 0),
    Sketcher.Constraint("Horizontal", 1),
    Sketcher.Constraint("Vertical", 2),
    Sketcher.Constraint("Horizontal", 3),
    Sketcher.Constraint("DistanceX", 1, 1, 1, 2, Q("1 mm")),
    Sketcher.Constraint("DistanceY", 0, 2, 0, 1, Q("20 mm")),
    Sketcher.Constraint("DistanceX", 0, 2, -1, 1, Q("25.533973 mm")),
    Sketcher.Constraint("DistanceY", -1, 1, 0, 2, Q("64.884596 mm")),
])
pad26 = doc.addObject("PartDesign::Pad", "Pad025")
body26.addObject(pad26)
pad26.Profile = sketch26
pad26.Length = 20
body27 = doc.addObject("PartDesign::Body", "Body026")

# Sketch on XY plane
sketch27 = doc.addObject("Sketcher::SketchObject", "Sketch026")
body27.addObject(sketch27)
sketch27.AttachmentSupport = (doc.getObject("XY_Plane026"), [""])
sketch27.MapMode = "FlatFace"
add_polygon(sketch27, [(-24.5, 64.9), (-24.5, 44.9), (-23.5, 44.9), (-23.5, 64.9)])  # lines 0-3
sketch27.addConstraint([
    Sketcher.Constraint("Vertical", 0),
    Sketcher.Constraint("Horizontal", 1),
    Sketcher.Constraint("Vertical", 2),
    Sketcher.Constraint("Horizontal", 3),
    Sketcher.Constraint("DistanceX", 1, 1, 1, 2, Q("1 mm")),
    Sketcher.Constraint("DistanceY", 0, 2, 0, 1, Q("20 mm")),
    Sketcher.Constraint("DistanceX", 0, 2, -1, 1, Q("24.533973 mm")),
    Sketcher.Constraint("DistanceY", -1, 1, 0, 2, Q("44.884596 mm")),
])
pad27 = doc.addObject("PartDesign::Pad", "Pad026")
body27.addObject(pad27)
pad27.Profile = sketch27
pad27.Length = 20
body28 = doc.addObject("PartDesign::Body", "Body027")

# Sketch on XY plane
sketch28 = doc.addObject("Sketcher::SketchObject", "Sketch027")
body28.addObject(sketch28)
sketch28.AttachmentSupport = (doc.getObject("XY_Plane027"), [""])
sketch28.MapMode = "FlatFace"
add_polygon(sketch28, [(-20.5, 64.9), (-20.5, 44.9), (-19.5, 44.9), (-19.5, 64.9)])  # lines 0-3
sketch28.addConstraint([
    Sketcher.Constraint("Vertical", 0),
    Sketcher.Constraint("Horizontal", 1),
    Sketcher.Constraint("Vertical", 2),
    Sketcher.Constraint("Horizontal", 3),
    Sketcher.Constraint("DistanceX", 1, 1, 1, 2, Q("1 mm")),
    Sketcher.Constraint("DistanceY", 0, 2, 0, 1, Q("20 mm")),
    Sketcher.Constraint("DistanceX", 0, 2, -1, 1, Q("20.533973 mm")),
    Sketcher.Constraint("DistanceY", -1, 1, 0, 2, Q("44.884596 mm")),
])
pad28 = doc.addObject("PartDesign::Pad", "Pad027")
body28.addObject(pad28)
pad28.Profile = sketch28
pad28.Length = 20
body29 = doc.addObject("PartDesign::Body", "Body028")

# Sketch on XY plane
sketch29 = doc.addObject("Sketcher::SketchObject", "Sketch028")
body29.addObject(sketch29)
sketch29.AttachmentSupport = (doc.getObject("XY_Plane028"), [""])
sketch29.MapMode = "FlatFace"
add_polygon(sketch29, [(-19.5, 84.9), (-19.5, 64.9), (-18.5, 64.9), (-18.5, 84.9)])  # lines 0-3
sketch29.addConstraint([
    Sketcher.Constraint("Vertical", 0),
    Sketcher.Constraint("Horizontal", 1),
    Sketcher.Constraint("Vertical", 2),
    Sketcher.Constraint("Horizontal", 3),
    Sketcher.Constraint("DistanceX", 1, 1, 1, 2, Q("1 mm")),
    Sketcher.Constraint("DistanceY", 0, 2, 0, 1, Q("20 mm")),
    Sketcher.Constraint("DistanceX", 0, 2, -1, 1, Q("19.533973 mm")),
    Sketcher.Constraint("DistanceY", -1, 1, 0, 2, Q("64.884596 mm")),
])
pad29 = doc.addObject("PartDesign::Pad", "Pad028")
body29.addObject(pad29)
pad29.Profile = sketch29
pad29.Length = 20
body30 = doc.addObject("PartDesign::Body", "Body029")

# Sketch on XY plane
sketch30 = doc.addObject("Sketcher::SketchObject", "Sketch029")
body30.addObject(sketch30)
sketch30.AttachmentSupport = (doc.getObject("XY_Plane029"), [""])
sketch30.MapMode = "FlatFace"
add_polygon(sketch30, [(-17.5, 84.9), (-17.5, 64.9), (-16.5, 64.9), (-16.5, 84.9)])  # lines 0-3
sketch30.addConstraint([
    Sketcher.Constraint("Vertical", 0),
    Sketcher.Constraint("Horizontal", 1),
    Sketcher.Constraint("Vertical", 2),
    Sketcher.Constraint("Horizontal", 3),
    Sketcher.Constraint("DistanceX", 1, 1, 1, 2, Q("1 mm")),
    Sketcher.Constraint("DistanceY", 0, 2, 0, 1, Q("20 mm")),
    Sketcher.Constraint("DistanceX", 0, 2, -1, 1, Q("17.533973 mm")),
    Sketcher.Constraint("DistanceY", -1, 1, 0, 2, Q("64.884596 mm")),
])
pad30 = doc.addObject("PartDesign::Pad", "Pad029")
body30.addObject(pad30)
pad30.Profile = sketch30
pad30.Length = 20
body31 = doc.addObject("PartDesign::Body", "Body030")

# Sketch on XY plane
sketch31 = doc.addObject("Sketcher::SketchObject", "Sketch030")
body31.addObject(sketch31)
sketch31.AttachmentSupport = (doc.getObject("XY_Plane030"), [""])
sketch31.MapMode = "FlatFace"
add_polygon(sketch31, [(-16.5, 64.9), (-16.5, 44.9), (-15.5, 44.9), (-15.5, 64.9)])  # lines 0-3
sketch31.addConstraint([
    Sketcher.Constraint("Vertical", 0),
    Sketcher.Constraint("Horizontal", 1),
    Sketcher.Constraint("Vertical", 2),
    Sketcher.Constraint("Horizontal", 3),
    Sketcher.Constraint("DistanceX", 1, 1, 1, 2, Q("1 mm")),
    Sketcher.Constraint("DistanceY", 0, 2, 0, 1, Q("20 mm")),
    Sketcher.Constraint("DistanceX", 0, 2, -1, 1, Q("16.533973 mm")),
    Sketcher.Constraint("DistanceY", -1, 1, 0, 2, Q("44.884596 mm")),
])
pad31 = doc.addObject("PartDesign::Pad", "Pad030")
body31.addObject(pad31)
pad31.Profile = sketch31
pad31.Length = 20
body32 = doc.addObject("PartDesign::Body", "Body031")

# Sketch on XY plane
sketch32 = doc.addObject("Sketcher::SketchObject", "Sketch031")
body32.addObject(sketch32)
sketch32.AttachmentSupport = (doc.getObject("XY_Plane031"), [""])
sketch32.MapMode = "FlatFace"
add_polygon(sketch32, [(-12.5, 64.9), (-12.5, 44.9), (-11.5, 44.9), (-11.5, 64.9)])  # lines 0-3
sketch32.addConstraint([
    Sketcher.Constraint("Vertical", 0),
    Sketcher.Constraint("Horizontal", 1),
    Sketcher.Constraint("Vertical", 2),
    Sketcher.Constraint("Horizontal", 3),
    Sketcher.Constraint("DistanceX", 1, 1, 1, 2, Q("1 mm")),
    Sketcher.Constraint("DistanceY", 0, 2, 0, 1, Q("20 mm")),
    Sketcher.Constraint("DistanceX", 0, 2, -1, 1, Q("12.533973 mm")),
    Sketcher.Constraint("DistanceY", -1, 1, 0, 2, Q("44.884596 mm")),
])
pad32 = doc.addObject("PartDesign::Pad", "Pad031")
body32.addObject(pad32)
pad32.Profile = sketch32
pad32.Length = 20
body33 = doc.addObject("PartDesign::Body", "Body032")

# Sketch on XY plane
sketch33 = doc.addObject("Sketcher::SketchObject", "Sketch032")
body33.addObject(sketch33)
sketch33.AttachmentSupport = (doc.getObject("XY_Plane032"), [""])
sketch33.MapMode = "FlatFace"
add_polygon(sketch33, [(-11.5, 84.9), (-11.5, 64.9), (-10.5, 64.9), (-10.5, 84.9)])  # lines 0-3
sketch33.addConstraint([
    Sketcher.Constraint("Vertical", 0),
    Sketcher.Constraint("Horizontal", 1),
    Sketcher.Constraint("Vertical", 2),
    Sketcher.Constraint("Horizontal", 3),
    Sketcher.Constraint("DistanceX", 1, 1, 1, 2, Q("1 mm")),
    Sketcher.Constraint("DistanceY", 0, 2, 0, 1, Q("20 mm")),
    Sketcher.Constraint("DistanceX", 0, 2, -1, 1, Q("11.533973 mm")),
    Sketcher.Constraint("DistanceY", -1, 1, 0, 2, Q("64.884596 mm")),
])
pad33 = doc.addObject("PartDesign::Pad", "Pad032")
body33.addObject(pad33)
pad33.Profile = sketch33
pad33.Length = 20
body34 = doc.addObject("PartDesign::Body", "Body033")

# Sketch on XY plane
sketch34 = doc.addObject("Sketcher::SketchObject", "Sketch033")
body34.addObject(sketch34)
sketch34.AttachmentSupport = (doc.getObject("XY_Plane033"), [""])
sketch34.MapMode = "FlatFace"
add_polygon(sketch34, [(-9.5, 84.9), (-9.5, 64.9), (-8.5, 64.9), (-8.5, 84.9)])  # lines 0-3
sketch34.addConstraint([
    Sketcher.Constraint("Vertical", 0),
    Sketcher.Constraint("Horizontal", 1),
    Sketcher.Constraint("Vertical", 2),
    Sketcher.Constraint("Horizontal", 3),
    Sketcher.Constraint("DistanceX", 1, 1, 1, 2, Q("1 mm")),
    Sketcher.Constraint("DistanceY", 0, 2, 0, 1, Q("20 mm")),
    Sketcher.Constraint("DistanceX", 0, 2, -1, 1, Q("9.533973 mm")),
    Sketcher.Constraint("DistanceY", -1, 1, 0, 2, Q("64.884596 mm")),
])
pad34 = doc.addObject("PartDesign::Pad", "Pad033")
body34.addObject(pad34)
pad34.Profile = sketch34
pad34.Length = 20
body35 = doc.addObject("PartDesign::Body", "Body034")

# Sketch on XY plane
sketch35 = doc.addObject("Sketcher::SketchObject", "Sketch034")
body35.addObject(sketch35)
sketch35.AttachmentSupport = (doc.getObject("XY_Plane034"), [""])
sketch35.MapMode = "FlatFace"
add_polygon(sketch35, [(-8.5, 64.9), (-8.5, 44.9), (-7.5, 44.9), (-7.5, 64.9)])  # lines 0-3
sketch35.addConstraint([
    Sketcher.Constraint("Vertical", 0),
    Sketcher.Constraint("Horizontal", 1),
    Sketcher.Constraint("Vertical", 2),
    Sketcher.Constraint("Horizontal", 3),
    Sketcher.Constraint("DistanceX", 1, 1, 1, 2, Q("1 mm")),
    Sketcher.Constraint("DistanceY", 0, 2, 0, 1, Q("20 mm")),
    Sketcher.Constraint("DistanceX", 0, 2, -1, 1, Q("8.533973 mm")),
    Sketcher.Constraint("DistanceY", -1, 1, 0, 2, Q("44.884596 mm")),
])
pad35 = doc.addObject("PartDesign::Pad", "Pad034")
body35.addObject(pad35)
pad35.Profile = sketch35
pad35.Length = 20
body36 = doc.addObject("PartDesign::Body", "Body035")

# Sketch on XY plane
sketch36 = doc.addObject("Sketcher::SketchObject", "Sketch035")
body36.addObject(sketch36)
sketch36.AttachmentSupport = (doc.getObject("XY_Plane035"), [""])
sketch36.MapMode = "FlatFace"
add_polygon(sketch36, [(-42.5, 104.9), (-42.5, 84.9), (-41.5, 84.9), (-41.5, 104.9)])  # lines 0-3
sketch36.addConstraint([
    Sketcher.Constraint("Vertical", 0),
    Sketcher.Constraint("Horizontal", 1),
    Sketcher.Constraint("Vertical", 2),
    Sketcher.Constraint("Horizontal", 3),
    Sketcher.Constraint("DistanceX", 1, 1, 1, 2, Q("1 mm")),
    Sketcher.Constraint("DistanceY", 0, 2, 0, 1, Q("20 mm")),
    Sketcher.Constraint("DistanceX", 0, 2, -1, 1, Q("42.533973 mm")),
    Sketcher.Constraint("DistanceY", -1, 1, 0, 2, Q("84.884596 mm")),
])
pad36 = doc.addObject("PartDesign::Pad", "Pad035")
body36.addObject(pad36)
pad36.Profile = sketch36
pad36.Length = 20
body37 = doc.addObject("PartDesign::Body", "Body036")

# Sketch on XY plane
sketch37 = doc.addObject("Sketcher::SketchObject", "Sketch036")
body37.addObject(sketch37)
sketch37.AttachmentSupport = (doc.getObject("XY_Plane036"), [""])
sketch37.MapMode = "FlatFace"
add_polygon(sketch37, [(-34.5, 104.9), (-34.5, 84.9), (-33.5, 84.9), (-33.5, 104.9)])  # lines 0-3
sketch37.addConstraint([
    Sketcher.Constraint("Vertical", 0),
    Sketcher.Constraint("Horizontal", 1),
    Sketcher.Constraint("Vertical", 2),
    Sketcher.Constraint("Horizontal", 3),
    Sketcher.Constraint("DistanceX", 1, 1, 1, 2, Q("1 mm")),
    Sketcher.Constraint("DistanceY", 0, 2, 0, 1, Q("20 mm")),
    Sketcher.Constraint("DistanceX", 0, 2, -1, 1, Q("34.533973 mm")),
    Sketcher.Constraint("DistanceY", -1, 1, 0, 2, Q("84.884596 mm")),
])
pad37 = doc.addObject("PartDesign::Pad", "Pad036")
body37.addObject(pad37)
pad37.Profile = sketch37
pad37.Length = 20
body38 = doc.addObject("PartDesign::Body", "Body037")

# Sketch on XY plane
sketch38 = doc.addObject("Sketcher::SketchObject", "Sketch037")
body38.addObject(sketch38)
sketch38.AttachmentSupport = (doc.getObject("XY_Plane037"), [""])
sketch38.MapMode = "FlatFace"
add_polygon(sketch38, [(-26.5, 104.9), (-26.5, 84.9), (-25.5, 84.9), (-25.5, 104.9)])  # lines 0-3
sketch38.addConstraint([
    Sketcher.Constraint("Vertical", 0),
    Sketcher.Constraint("Horizontal", 1),
    Sketcher.Constraint("Vertical", 2),
    Sketcher.Constraint("Horizontal", 3),
    Sketcher.Constraint("DistanceX", 1, 1, 1, 2, Q("1 mm")),
    Sketcher.Constraint("DistanceY", 0, 2, 0, 1, Q("20 mm")),
    Sketcher.Constraint("DistanceX", 0, 2, -1, 1, Q("26.533973 mm")),
    Sketcher.Constraint("DistanceY", -1, 1, 0, 2, Q("84.884596 mm")),
])
pad38 = doc.addObject("PartDesign::Pad", "Pad037")
body38.addObject(pad38)
pad38.Profile = sketch38
pad38.Length = 20
body39 = doc.addObject("PartDesign::Body", "Body038")

# Sketch on XY plane
sketch39 = doc.addObject("Sketcher::SketchObject", "Sketch038")
body39.addObject(sketch39)
sketch39.AttachmentSupport = (doc.getObject("XY_Plane038"), [""])
sketch39.MapMode = "FlatFace"
add_polygon(sketch39, [(-18.5, 104.9), (-18.5, 84.9), (-17.5, 84.9), (-17.5, 104.9)])  # lines 0-3
sketch39.addConstraint([
    Sketcher.Constraint("Vertical", 0),
    Sketcher.Constraint("Horizontal", 1),
    Sketcher.Constraint("Vertical", 2),
    Sketcher.Constraint("Horizontal", 3),
    Sketcher.Constraint("DistanceX", 1, 1, 1, 2, Q("1 mm")),
    Sketcher.Constraint("DistanceY", 0, 2, 0, 1, Q("20 mm")),
    Sketcher.Constraint("DistanceX", 0, 2, -1, 1, Q("18.533973 mm")),
    Sketcher.Constraint("DistanceY", -1, 1, 0, 2, Q("84.884596 mm")),
])
pad39 = doc.addObject("PartDesign::Pad", "Pad038")
body39.addObject(pad39)
pad39.Profile = sketch39
pad39.Length = 20
body40 = doc.addObject("PartDesign::Body", "Body039")

# Sketch on XY plane
sketch40 = doc.addObject("Sketcher::SketchObject", "Sketch039")
body40.addObject(sketch40)
sketch40.AttachmentSupport = (doc.getObject("XY_Plane039"), [""])
sketch40.MapMode = "FlatFace"
add_polygon(sketch40, [(-10.5, 104.9), (-10.5, 84.9), (-9.5, 84.9), (-9.5, 104.9)])  # lines 0-3
sketch40.addConstraint([
    Sketcher.Constraint("Vertical", 0),
    Sketcher.Constraint("Horizontal", 1),
    Sketcher.Constraint("Vertical", 2),
    Sketcher.Constraint("Horizontal", 3),
    Sketcher.Constraint("DistanceX", 1, 1, 1, 2, Q("1 mm")),
    Sketcher.Constraint("DistanceY", 0, 2, 0, 1, Q("20 mm")),
    Sketcher.Constraint("DistanceX", 0, 2, -1, 1, Q("10.533973 mm")),
    Sketcher.Constraint("DistanceY", -1, 1, 0, 2, Q("84.884596 mm")),
])
pad40 = doc.addObject("PartDesign::Pad", "Pad039")
body40.addObject(pad40)
pad40.Profile = sketch40
pad40.Length = 20
body41 = doc.addObject("PartDesign::Body", "Body040")

# Sketch on XY plane
sketch41 = doc.addObject("Sketcher::SketchObject", "Sketch040")
body41.addObject(sketch41)
sketch41.AttachmentSupport = (doc.getObject("XY_Plane040"), [""])
sketch41.MapMode = "FlatFace"
add_polygon(sketch41, [(-40.5, 64.9), (-40.5, 44.9), (-39.5, 44.9), (-39.5, 64.9)])  # lines 0-3
sketch41.addConstraint([
    Sketcher.Constraint("Vertical", 0),
    Sketcher.Constraint("Horizontal", 1),
    Sketcher.Constraint("Vertical", 2),
    Sketcher.Constraint("Horizontal", 3),
    Sketcher.Constraint("DistanceX", 1, 1, 1, 2, Q("1 mm")),
    Sketcher.Constraint("DistanceY", 0, 2, 0, 1, Q("20 mm")),
    Sketcher.Constraint("DistanceX", 0, 2, -1, 1, Q("40.533973 mm")),
    Sketcher.Constraint("DistanceY", -1, 1, 0, 2, Q("44.884596 mm")),
])
pad41 = doc.addObject("PartDesign::Pad", "Pad040")
body41.addObject(pad41)
pad41.Profile = sketch41
pad41.Length = 20

doc.recompute()
